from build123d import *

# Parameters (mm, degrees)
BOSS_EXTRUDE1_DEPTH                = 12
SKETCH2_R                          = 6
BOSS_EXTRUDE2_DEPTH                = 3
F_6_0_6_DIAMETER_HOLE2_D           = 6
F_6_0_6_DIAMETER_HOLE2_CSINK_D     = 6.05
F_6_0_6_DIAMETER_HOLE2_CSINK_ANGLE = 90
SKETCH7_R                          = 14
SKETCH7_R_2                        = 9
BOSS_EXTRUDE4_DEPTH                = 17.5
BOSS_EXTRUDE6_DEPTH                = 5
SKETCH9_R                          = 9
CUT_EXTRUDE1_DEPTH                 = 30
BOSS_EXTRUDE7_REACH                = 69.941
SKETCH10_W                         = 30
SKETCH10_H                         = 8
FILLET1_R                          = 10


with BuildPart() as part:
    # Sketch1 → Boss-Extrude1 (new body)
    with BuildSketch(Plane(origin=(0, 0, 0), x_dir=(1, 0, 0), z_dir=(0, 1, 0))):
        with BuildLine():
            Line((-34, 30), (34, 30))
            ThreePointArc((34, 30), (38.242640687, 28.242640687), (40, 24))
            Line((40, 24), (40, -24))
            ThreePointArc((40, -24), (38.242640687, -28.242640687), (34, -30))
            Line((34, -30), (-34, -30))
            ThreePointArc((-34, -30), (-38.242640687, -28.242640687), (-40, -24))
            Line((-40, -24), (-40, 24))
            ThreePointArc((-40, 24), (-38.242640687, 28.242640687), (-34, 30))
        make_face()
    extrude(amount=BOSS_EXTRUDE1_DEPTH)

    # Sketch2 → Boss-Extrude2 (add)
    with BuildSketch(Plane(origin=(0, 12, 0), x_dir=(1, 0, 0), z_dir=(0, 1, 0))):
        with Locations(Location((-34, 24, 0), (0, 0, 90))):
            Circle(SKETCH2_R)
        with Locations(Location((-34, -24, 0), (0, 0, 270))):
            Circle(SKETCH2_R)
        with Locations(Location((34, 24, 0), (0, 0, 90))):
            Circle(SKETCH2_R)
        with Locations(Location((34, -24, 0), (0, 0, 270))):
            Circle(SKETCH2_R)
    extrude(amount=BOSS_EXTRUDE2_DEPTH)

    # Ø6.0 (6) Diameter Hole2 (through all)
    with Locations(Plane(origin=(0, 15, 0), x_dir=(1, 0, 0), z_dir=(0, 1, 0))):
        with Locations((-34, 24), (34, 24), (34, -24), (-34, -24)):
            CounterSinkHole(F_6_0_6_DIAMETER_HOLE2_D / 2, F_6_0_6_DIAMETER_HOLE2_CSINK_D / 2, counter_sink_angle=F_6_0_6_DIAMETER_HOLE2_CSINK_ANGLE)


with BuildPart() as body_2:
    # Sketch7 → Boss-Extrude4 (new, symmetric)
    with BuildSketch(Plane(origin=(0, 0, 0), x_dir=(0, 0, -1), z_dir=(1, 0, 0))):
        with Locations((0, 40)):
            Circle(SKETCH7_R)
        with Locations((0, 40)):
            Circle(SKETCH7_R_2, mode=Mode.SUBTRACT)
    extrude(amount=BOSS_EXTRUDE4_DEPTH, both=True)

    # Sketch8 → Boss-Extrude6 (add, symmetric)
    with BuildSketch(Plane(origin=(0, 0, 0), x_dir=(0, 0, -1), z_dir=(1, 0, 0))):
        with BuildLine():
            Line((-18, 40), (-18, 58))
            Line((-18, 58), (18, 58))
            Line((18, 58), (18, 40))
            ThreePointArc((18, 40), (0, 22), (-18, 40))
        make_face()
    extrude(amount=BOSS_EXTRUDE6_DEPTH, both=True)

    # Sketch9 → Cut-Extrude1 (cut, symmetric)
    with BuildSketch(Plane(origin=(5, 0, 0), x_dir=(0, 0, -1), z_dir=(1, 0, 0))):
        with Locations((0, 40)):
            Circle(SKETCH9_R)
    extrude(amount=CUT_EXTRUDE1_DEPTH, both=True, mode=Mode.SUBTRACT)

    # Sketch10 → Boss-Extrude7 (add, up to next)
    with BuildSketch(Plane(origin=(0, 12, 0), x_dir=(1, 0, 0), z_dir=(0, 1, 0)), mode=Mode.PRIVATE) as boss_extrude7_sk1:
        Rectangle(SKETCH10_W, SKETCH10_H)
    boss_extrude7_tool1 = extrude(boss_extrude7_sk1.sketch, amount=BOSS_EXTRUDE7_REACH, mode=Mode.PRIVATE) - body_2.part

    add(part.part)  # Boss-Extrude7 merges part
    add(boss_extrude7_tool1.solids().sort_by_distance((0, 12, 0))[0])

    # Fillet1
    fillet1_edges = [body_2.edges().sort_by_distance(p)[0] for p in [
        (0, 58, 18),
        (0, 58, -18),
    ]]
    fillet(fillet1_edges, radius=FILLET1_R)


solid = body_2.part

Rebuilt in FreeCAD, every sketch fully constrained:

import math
import FreeCAD as App
import Part
import Sketcher

V = App.Vector
Q = App.Units.Quantity


def edges_at(feature, points):
    """Names of the edges that pass closest to the given points."""
    edges = feature.Shape.Edges
    near = lambda p: min(range(len(edges)), key=lambda i: edges[i].distToShape(Part.Vertex(*p))[0])
    return sorted({f"Edge{near(p) + 1}" for p in points})

doc = App.newDocument("Part")
params = doc.addObject("Spreadsheet::Sheet", "Params")
for row, (alias, value) in enumerate([
    ("sketch1_radius", "6 mm"),
    ("sketch1_width", "68 mm"),
    ("sketch1_height", "48 mm"),
    ("pad1_length", "12 mm"),
    ("sketch2_diameter", "12 mm"),
    ("pad2_length", "3 mm"),
    ("sketch3_diameter", "6 mm"),
    ("hole_diameter", "6 mm"),
    ("hole_csink_diameter", "6.05 mm"),
    ("sketch4_diameter", "28 mm"),
    ("sketch4_diameter2", "18 mm"),
    ("pad3_length", "35 mm"),
    ("sketch5_radius", "18 mm"),
    ("sketch5_width", "18 mm"),
    ("pad4_length", "10 mm"),
    ("sketch6_diameter", "18 mm"),
    ("pocket1_length", "60 mm"),
    ("sketch7_width", "30 mm"),
    ("sketch7_height", "8 mm"),
    ("fillet_radius", "10 mm"),
], start=1):
    params.set(f"A{row}", alias)
    params.set(f"B{row}", "=" + value)
    params.setAlias(f"B{row}", alias)

body = doc.addObject("PartDesign::Body", "Body")

sketch1 = body.newObject("Sketcher::SketchObject", "Sketch")
sketch1.AttachmentSupport = (doc.getObject("XZ_Plane"), [""])
sketch1.MapMode = "FlatFace"
sketch1.addGeometry([
    Part.LineSegment(V(34, -30, 0), V(-34, -30, 0)),
    Part.ArcOfCircle(Part.Circle(V(-34, -24, 0), V(0, 0, 1), 6), math.radians(180), math.radians(270)),
    Part.LineSegment(V(-40, -24, 0), V(-40, 24, 0)),
    Part.ArcOfCircle(Part.Circle(V(-34, 24, 0), V(0, 0, 1), 6), math.radians(90), math.radians(180)),
    Part.LineSegment(V(-34, 30, 0), V(34, 30, 0)),
    Part.ArcOfCircle(Part.Circle(V(34, 24, 0), V(0, 0, 1), 6), math.radians(0), math.radians(90)),
    Part.LineSegment(V(40, 24, 0), V(40, -24, 0)),
    Part.ArcOfCircle(Part.Circle(V(34, -24, 0), V(0, 0, 1), 6), math.radians(-90), math.radians(0)),
], False)
sketch1.addConstraint([
    Sketcher.Constraint("Tangent", 0, 2, 1, 2),
    Sketcher.Constraint("Tangent", 1, 1, 2, 1),
    Sketcher.Constraint("Tangent", 2, 2, 3, 2),
    Sketcher.Constraint("Tangent", 3, 1, 4, 1),
    Sketcher.Constraint("Tangent", 4, 2, 5, 2),
    Sketcher.Constraint("Tangent", 5, 1, 6, 1),
    Sketcher.Constraint("Tangent", 6, 2, 7, 2),
    Sketcher.Constraint("Tangent", 7, 1, 0, 1),
    Sketcher.Constraint("Horizontal", 0),
    Sketcher.Constraint("Vertical", 2),
    Sketcher.Constraint("Horizontal", 4),
    Sketcher.Constraint("Vertical", 6),
    Sketcher.Constraint("Equal", 1, 3),
    Sketcher.Constraint("Equal", 3, 5),
    Sketcher.Constraint("Equal", 5, 7),
    Sketcher.Constraint("Symmetric", 1, 3, 5, 3, -1, 1),
    Sketcher.Constraint("Radius", 1, Q("6 mm")),
    Sketcher.Constraint("DistanceX", 0, 2, 0, 1, Q("68 mm")),
    Sketcher.Constraint("DistanceY", 2, 1, 2, 2, Q("48 mm")),
])
sketch1.setExpression("Constraints[16]", "Params.sketch1_radius")
sketch1.setExpression("Constraints[17]", "Params.sketch1_width")
sketch1.setExpression("Constraints[18]", "Params.sketch1_height")
pad1 = body.newObject("PartDesign::Pad", "Pad")
pad1.Profile = sketch1
pad1.setExpression("Length", "Params.pad1_length")
pad1.Reversed = True

sketch2 = body.newObject("Sketcher::SketchObject", "Sketch001")
sketch2.AttachmentSupport = (doc.getObject("XZ_Plane"), [""])
sketch2.MapMode = "FlatFace"
sketch2.AttachmentOffset = App.Placement(V(0, 0, -12), App.Rotation())
sketch2.addGeometry([
    Part.Circle(V(-34, -24, 0), V(0, 0, 1), 6),
    Part.Circle(V(-34, 24, 0), V(0, 0, 1), 6),
    Part.Circle(V(34, -24, 0), V(0, 0, 1), 6),
    Part.Circle(V(34, 24, 0), V(0, 0, 1), 6),
], False)
sketch2.addConstraint([
    Sketcher.Constraint("Equal", 0, 1),
    Sketcher.Constraint("Equal", 1, 2),
    Sketcher.Constraint("Equal", 2, 3),
    Sketcher.Constraint("Symmetric", 1, 3, 2, 3, -1, 1),
    Sketcher.Constraint("Symmetric", 0, 3, 3, 3, -1, 1),
    Sketcher.Constraint("Symmetric", 0, 3, 2, 3, -2),
    Sketcher.Constraint("Diameter", 0, Q("12 mm")),
    Sketcher.Constraint("DistanceX", 0, 3, -1, 1, Q("34 mm")),
    Sketcher.Constraint("DistanceY", 0, 3, -1, 1, Q("24 mm")),
])
sketch2.setExpression("Constraints[6]", "Params.sketch2_diameter")
pad2 = body.newObject("PartDesign::Pad", "Pad001")
pad2.Profile = sketch2
pad2.setExpression("Length", "Params.pad2_length")
pad2.Reversed = True

sketch3 = body.newObject("Sketcher::SketchObject", "Sketch002")
sketch3.AttachmentSupport = (doc.getObject("XZ_Plane"), [""])
sketch3.MapMode = "FlatFace"
sketch3.AttachmentOffset = App.Placement(V(0, 0, -15), App.Rotation())
sketch3.addGeometry([
    Part.Circle(V(-34, -24, 0), V(0, 0, 1), 3),
    Part.Circle(V(34, -24, 0), V(0, 0, 1), 3),
    Part.Circle(V(34, 24, 0), V(0, 0, 1), 3),
    Part.Circle(V(-34, 24, 0), V(0, 0, 1), 3),
], False)
sketch3.addConstraint([
    Sketcher.Constraint("Equal", 0, 1),
    Sketcher.Constraint("Equal", 1, 2),
    Sketcher.Constraint("Equal", 2, 3),
    Sketcher.Constraint("Symmetric", 0, 3, 2, 3, -1, 1),
    Sketcher.Constraint("Symmetric", 1, 3, 3, 3, -1, 1),
    Sketcher.Constraint("Symmetric", 0, 3, 1, 3, -2),
    Sketcher.Constraint("Diameter", 0, Q("6 mm")),
    Sketcher.Constraint("DistanceX", 0, 3, -1, 1, Q("34 mm")),
    Sketcher.Constraint("DistanceY", 0, 3, -1, 1, Q("24 mm")),
])
sketch3.setExpression("Constraints[6]", "Params.sketch3_diameter")
doc.recompute()
hole = body.newObject("PartDesign::Hole", "Hole")
hole.Profile = sketch3
hole.ThreadType = "None"
hole.setExpression("Diameter", "Params.hole_diameter")
hole.DepthType = "ThroughAll"
hole.HoleCutType = "Countersink"
hole.setExpression("HoleCutDiameter", "Params.hole_csink_diameter")
hole.HoleCutCountersinkAngle = 90
hole.Reversed = True
body2 = doc.addObject("PartDesign::Body", "Body001")
body2.AllowCompound = True

sketch4 = body2.newObject("Sketcher::SketchObject", "Sketch003")
sketch4.AttachmentSupport = (doc.getObject("YZ_Plane001"), [""])
sketch4.MapMode = "FlatFace"
sketch4.addGeometry([
    Part.Circle(V(40, 0, 0), V(0, 0, 1), 14),
    Part.Circle(V(40, 0, 0), V(0, 0, 1), 9),
], False)
sketch4.addConstraint([
    Sketcher.Constraint("Coincident", 1, 3, 0, 3),
    Sketcher.Constraint("PointOnObject", 0, 3, -1),
    Sketcher.Constraint("Diameter", 0, Q("28 mm")),
    Sketcher.Constraint("Diameter", 1, Q("18 mm")),
    Sketcher.Constraint("DistanceX", -1, 1, 0, 3, Q("40 mm")),
])
sketch4.setExpression("Constraints[2]", "Params.sketch4_diameter")
sketch4.setExpression("Constraints[3]", "Params.sketch4_diameter2")
pad3 = body2.newObject("PartDesign::Pad", "Pad002")
pad3.Profile = sketch4
pad3.setExpression("Length", "Params.pad3_length")
pad3.Midplane = True

sketch5 = body2.newObject("Sketcher::SketchObject", "Sketch004")
sketch5.AttachmentSupport = (doc.getObject("YZ_Plane001"), [""])
sketch5.MapMode = "FlatFace"
sketch5.addGeometry([
    Part.LineSegment(V(58, 18, 0), V(40, 18, 0)),
    Part.ArcOfCircle(Part.Circle(V(40, 0, 0), V(0, 0, 1), 18), math.radians(90), math.radians(270)),
    Part.LineSegment(V(40, -18, 0), V(58, -18, 0)),
    Part.LineSegment(V(58, -18, 0), V(58, 18, 0)),
], False)
sketch5.addConstraint([
    Sketcher.Constraint("Tangent", 0, 2, 1, 1),
    Sketcher.Constraint("Tangent", 1, 2, 2, 1),
    Sketcher.Constraint("Coincident", 2, 2, 3, 1),
    Sketcher.Constraint("Coincident", 3, 2, 0, 1),
    Sketcher.Constraint("Horizontal", 0),
    Sketcher.Constraint("Horizontal", 2),
    Sketcher.Constraint("Vertical", 3),
    Sketcher.Constraint("PointOnObject", 1, 3, -1),
    Sketcher.Constraint("Radius", 1, Q("18 mm")),
    Sketcher.Constraint("DistanceX", 0, 2, 0, 1, Q("18 mm")),
    Sketcher.Constraint("DistanceX", -1, 1, 1, 3, Q("40 mm")),
])
sketch5.setExpression("Constraints[8]", "Params.sketch5_radius")
sketch5.setExpression("Constraints[9]", "Params.sketch5_width")
pad4 = body2.newObject("PartDesign::Pad", "Pad003")
pad4.Profile = sketch5
pad4.setExpression("Length", "Params.pad4_length")
pad4.Midplane = True

sketch6 = body2.newObject("Sketcher::SketchObject", "Sketch005")
sketch6.AttachmentSupport = (doc.getObject("YZ_Plane001"), [""])
sketch6.MapMode = "FlatFace"
sketch6.AttachmentOffset = App.Placement(V(0, 0, 5), App.Rotation())
sketch6.addGeometry(Part.Circle(V(40, 0, 0), V(0, 0, 1), 9), False)
sketch6.addConstraint([
    Sketcher.Constraint("PointOnObject", 0, 3, -1),
    Sketcher.Constraint("Diameter", 0, Q("18 mm")),
    Sketcher.Constraint("DistanceX", -1, 1, 0, 3, Q("40 mm")),
])
sketch6.setExpression("Constraints[1]", "Params.sketch6_diameter")
pocket1 = body2.newObject("PartDesign::Pocket", "Pocket")
pocket1.Profile = sketch6
pocket1.setExpression("Length", "Params.pocket1_length")
pocket1.Midplane = True
doc.recompute()

boolean = body2.newObject("PartDesign::Boolean", "Boolean")
boolean.Type = "Fuse"
boolean.addObjects([body])

sketch7 = body2.newObject("Sketcher::SketchObject", "Sketch006")
sketch7.AttachmentSupport = (doc.getObject("XZ_Plane001"), [""])
sketch7.MapMode = "FlatFace"
sketch7.AttachmentOffset = App.Placement(V(0, 0, -12), App.Rotation())
sketch7.addGeometry([
    Part.LineSegment(V(-15, -4, 0), V(-15, 4, 0)),
    Part.LineSegment(V(-15, 4, 0), V(15, 4, 0)),
    Part.LineSegment(V(15, 4, 0), V(15, -4, 0)),
    Part.LineSegment(V(15, -4, 0), V(-15, -4, 0)),
], False)
sketch7.addConstraint([
    Sketcher.Constraint("Coincident", 0, 2, 1, 1),
    Sketcher.Constraint("Coincident", 1, 2, 2, 1),
    Sketcher.Constraint("Coincident", 2, 2, 3, 1),
    Sketcher.Constraint("Coincident", 3, 2, 0, 1),
    Sketcher.Constraint("Vertical", 0),
    Sketcher.Constraint("Horizontal", 1),
    Sketcher.Constraint("Vertical", 2),
    Sketcher.Constraint("Horizontal", 3),
    Sketcher.Constraint("Symmetric", 0, 2, 2, 2, -1, 1),
    Sketcher.Constraint("DistanceX", 1, 1, 1, 2, Q("30 mm")),
    Sketcher.Constraint("DistanceY", 0, 1, 0, 2, Q("8 mm")),
])
sketch7.setExpression("Constraints[9]", "Params.sketch7_width")
sketch7.setExpression("Constraints[10]", "Params.sketch7_height")
pad5 = body2.newObject("PartDesign::Pad", "Pad004")
pad5.Profile = sketch7
pad5.Type = "UpToFirst"
pad5.Reversed = True
doc.recompute()

fillet = body2.newObject("PartDesign::Fillet", "Fillet")
fillet.Base = (pad5, edges_at(pad5, [(0, 58, 18), (0, 58, -18)]))
fillet.setExpression("Radius", "Params.fillet_radius")

doc.recompute()
